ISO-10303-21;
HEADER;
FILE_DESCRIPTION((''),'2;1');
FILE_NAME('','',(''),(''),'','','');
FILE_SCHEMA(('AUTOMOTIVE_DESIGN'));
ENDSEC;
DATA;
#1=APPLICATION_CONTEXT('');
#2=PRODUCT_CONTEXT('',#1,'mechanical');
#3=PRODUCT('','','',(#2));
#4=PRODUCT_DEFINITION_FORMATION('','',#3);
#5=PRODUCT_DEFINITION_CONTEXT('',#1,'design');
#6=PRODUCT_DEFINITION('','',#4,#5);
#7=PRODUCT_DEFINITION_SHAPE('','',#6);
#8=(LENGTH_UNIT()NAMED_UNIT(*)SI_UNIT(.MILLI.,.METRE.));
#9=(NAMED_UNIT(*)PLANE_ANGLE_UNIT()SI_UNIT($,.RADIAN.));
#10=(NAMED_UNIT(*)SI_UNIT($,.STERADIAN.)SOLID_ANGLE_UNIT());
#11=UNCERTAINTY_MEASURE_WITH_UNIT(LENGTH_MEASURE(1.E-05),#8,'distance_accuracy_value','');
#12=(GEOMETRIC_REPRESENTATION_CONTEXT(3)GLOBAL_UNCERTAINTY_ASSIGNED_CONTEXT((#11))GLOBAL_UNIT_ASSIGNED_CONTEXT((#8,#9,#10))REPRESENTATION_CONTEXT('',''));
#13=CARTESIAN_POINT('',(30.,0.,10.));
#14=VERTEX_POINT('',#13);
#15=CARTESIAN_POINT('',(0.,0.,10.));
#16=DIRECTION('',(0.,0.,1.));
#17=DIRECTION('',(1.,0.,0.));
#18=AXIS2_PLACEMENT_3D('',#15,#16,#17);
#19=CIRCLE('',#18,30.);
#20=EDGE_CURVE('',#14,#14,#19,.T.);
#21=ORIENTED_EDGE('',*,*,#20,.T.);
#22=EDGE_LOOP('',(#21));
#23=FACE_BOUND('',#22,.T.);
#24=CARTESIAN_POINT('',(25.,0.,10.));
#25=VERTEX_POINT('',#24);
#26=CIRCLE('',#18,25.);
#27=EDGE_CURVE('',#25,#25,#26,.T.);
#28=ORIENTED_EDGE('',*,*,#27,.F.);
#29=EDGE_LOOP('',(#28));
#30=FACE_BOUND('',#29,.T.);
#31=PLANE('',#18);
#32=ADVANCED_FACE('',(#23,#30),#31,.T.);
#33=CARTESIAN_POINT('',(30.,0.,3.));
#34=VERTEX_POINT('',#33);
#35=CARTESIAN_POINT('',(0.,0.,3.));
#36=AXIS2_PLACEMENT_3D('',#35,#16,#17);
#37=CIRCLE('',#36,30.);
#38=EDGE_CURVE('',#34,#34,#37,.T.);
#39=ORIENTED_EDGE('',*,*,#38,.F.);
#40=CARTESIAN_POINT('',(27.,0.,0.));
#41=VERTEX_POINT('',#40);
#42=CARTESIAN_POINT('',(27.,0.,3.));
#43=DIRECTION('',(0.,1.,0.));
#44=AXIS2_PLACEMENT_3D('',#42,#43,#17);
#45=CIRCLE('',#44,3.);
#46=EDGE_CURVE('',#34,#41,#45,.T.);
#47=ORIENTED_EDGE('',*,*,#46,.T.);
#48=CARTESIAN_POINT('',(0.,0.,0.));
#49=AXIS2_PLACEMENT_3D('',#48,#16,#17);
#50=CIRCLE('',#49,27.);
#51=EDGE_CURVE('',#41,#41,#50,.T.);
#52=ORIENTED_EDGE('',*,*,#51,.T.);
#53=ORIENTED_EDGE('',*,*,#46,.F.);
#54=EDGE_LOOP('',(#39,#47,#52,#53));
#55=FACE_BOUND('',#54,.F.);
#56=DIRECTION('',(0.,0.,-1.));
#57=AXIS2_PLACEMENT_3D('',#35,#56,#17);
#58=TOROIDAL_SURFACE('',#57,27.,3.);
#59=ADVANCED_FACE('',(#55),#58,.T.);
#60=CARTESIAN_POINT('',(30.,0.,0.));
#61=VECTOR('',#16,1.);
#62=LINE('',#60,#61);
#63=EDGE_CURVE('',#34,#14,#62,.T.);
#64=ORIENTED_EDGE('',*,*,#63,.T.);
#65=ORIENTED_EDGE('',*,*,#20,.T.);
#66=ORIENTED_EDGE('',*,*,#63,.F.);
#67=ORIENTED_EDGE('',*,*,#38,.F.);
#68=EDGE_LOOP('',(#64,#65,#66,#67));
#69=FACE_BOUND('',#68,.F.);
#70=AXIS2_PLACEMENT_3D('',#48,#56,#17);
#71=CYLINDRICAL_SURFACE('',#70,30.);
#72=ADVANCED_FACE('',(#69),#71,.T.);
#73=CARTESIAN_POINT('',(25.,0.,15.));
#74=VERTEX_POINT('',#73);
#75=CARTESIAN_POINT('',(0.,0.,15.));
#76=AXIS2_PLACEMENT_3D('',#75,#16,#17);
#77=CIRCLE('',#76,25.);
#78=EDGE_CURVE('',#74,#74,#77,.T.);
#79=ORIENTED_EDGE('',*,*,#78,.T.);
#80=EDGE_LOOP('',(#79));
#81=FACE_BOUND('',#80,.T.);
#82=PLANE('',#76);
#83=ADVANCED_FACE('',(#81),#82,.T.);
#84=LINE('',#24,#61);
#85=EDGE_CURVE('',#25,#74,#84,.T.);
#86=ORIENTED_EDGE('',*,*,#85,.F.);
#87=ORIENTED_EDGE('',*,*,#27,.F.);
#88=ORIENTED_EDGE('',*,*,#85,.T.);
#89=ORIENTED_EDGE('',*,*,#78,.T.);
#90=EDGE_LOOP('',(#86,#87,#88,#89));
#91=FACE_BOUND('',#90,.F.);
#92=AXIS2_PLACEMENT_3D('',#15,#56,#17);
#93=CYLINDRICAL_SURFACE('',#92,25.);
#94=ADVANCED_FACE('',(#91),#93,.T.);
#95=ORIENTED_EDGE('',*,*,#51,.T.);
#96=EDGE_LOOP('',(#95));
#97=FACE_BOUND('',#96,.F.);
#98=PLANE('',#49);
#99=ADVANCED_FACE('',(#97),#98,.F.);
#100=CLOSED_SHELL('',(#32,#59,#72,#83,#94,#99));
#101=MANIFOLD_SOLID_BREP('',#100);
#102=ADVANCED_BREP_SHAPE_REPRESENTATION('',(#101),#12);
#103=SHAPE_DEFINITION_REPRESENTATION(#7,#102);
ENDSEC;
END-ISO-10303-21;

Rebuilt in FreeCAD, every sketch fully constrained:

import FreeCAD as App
import Part
import Sketcher

V = App.Vector


def edges_at(feature, points):
    """Names of the edges that pass closest to the given points."""
    edges = feature.Shape.Edges
    near = lambda p: min(range(len(edges)), key=lambda i: edges[i].distToShape(Part.Vertex(*p))[0])
    return sorted({f"Edge{near(p) + 1}" for p in points})

doc = App.newDocument("Part")
body = doc.addObject("PartDesign::Body", "Body")

# Sketch on XY plane
sketch1 = doc.addObject("Sketcher::SketchObject", "Sketch")
body.addObject(sketch1)
sketch1.AttachmentSupport = (doc.XY_Plane, [""])
sketch1.MapMode = "FlatFace"
sketch1.addGeometry(Part.Circle(V(0, 0, 0), V(0, 0, 1), 30), False)
sketch1.addConstraint([
    Sketcher.Constraint("Coincident", 0, 3, -1, 1),
    Sketcher.Constraint("Diameter", 0, 60.0),
])
pad1 = doc.addObject("PartDesign::Pad", "Pad")
body.addObject(pad1)
pad1.Profile = sketch1
pad1.Length = 10

# Sketch on XY plane
sketch2 = doc.addObject("Sketcher::SketchObject", "Sketch001")
body.addObject(sketch2)
sketch2.AttachmentSupport = (doc.XY_Plane, [""])
sketch2.MapMode = "FlatFace"
sketch2.AttachmentOffset = App.Placement(V(0, 0, 10), App.Rotation())
sketch2.addGeometry(Part.Circle(V(0, 0, 0), V(0, 0, 1), 25), False)
sketch2.addConstraint([
    Sketcher.Constraint("Coincident", 0, 3, -1, 1),
    Sketcher.Constraint("Diameter", 0, 50.0),
])
pad2 = doc.addObject("PartDesign::Pad", "Pad001")
body.addObject(pad2)
pad2.Profile = sketch2
pad2.Length = 5
doc.recompute()

fillet = doc.addObject("PartDesign::Fillet", "Fillet")
body.addObject(fillet)
fillet.Base = (pad2, edges_at(pad2, [(-30, 0, 0)]))
fillet.Radius = 3

doc.recompute()
